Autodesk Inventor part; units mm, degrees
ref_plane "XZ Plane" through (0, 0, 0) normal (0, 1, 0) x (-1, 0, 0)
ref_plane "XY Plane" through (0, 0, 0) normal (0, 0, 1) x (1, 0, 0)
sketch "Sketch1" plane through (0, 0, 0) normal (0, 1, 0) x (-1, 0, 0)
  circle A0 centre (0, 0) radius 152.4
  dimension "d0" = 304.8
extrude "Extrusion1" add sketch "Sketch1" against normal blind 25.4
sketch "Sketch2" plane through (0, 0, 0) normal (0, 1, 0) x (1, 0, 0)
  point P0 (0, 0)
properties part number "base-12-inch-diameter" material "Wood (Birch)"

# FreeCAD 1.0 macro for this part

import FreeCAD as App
import Part
import Sketcher
Q = App.Units.Quantity

doc = App.newDocument("Part")
body = doc.addObject("PartDesign::Body", "Body")

# Sketch on XZ plane
sketch1 = body.newObject("Sketcher::SketchObject", "Sketch")
sketch1.AttachmentSupport = (doc.getObject("XZ_Plane"), [""])
sketch1.MapMode = "FlatFace"
sketch1.addGeometry(Part.Circle(App.Vector(0, 0, 0), App.Vector(0, 0, 1), 152.4), False)
sketch1.addConstraint([
    Sketcher.Constraint("Coincident", 0, 3, -1, 1),
    Sketcher.Constraint("Diameter", 0, Q("12 in")),
])
pad1 = body.newObject("PartDesign::Pad", "Pad")
pad1.Profile = sketch1
pad1.Length = Q("1 in")

doc.recompute()
